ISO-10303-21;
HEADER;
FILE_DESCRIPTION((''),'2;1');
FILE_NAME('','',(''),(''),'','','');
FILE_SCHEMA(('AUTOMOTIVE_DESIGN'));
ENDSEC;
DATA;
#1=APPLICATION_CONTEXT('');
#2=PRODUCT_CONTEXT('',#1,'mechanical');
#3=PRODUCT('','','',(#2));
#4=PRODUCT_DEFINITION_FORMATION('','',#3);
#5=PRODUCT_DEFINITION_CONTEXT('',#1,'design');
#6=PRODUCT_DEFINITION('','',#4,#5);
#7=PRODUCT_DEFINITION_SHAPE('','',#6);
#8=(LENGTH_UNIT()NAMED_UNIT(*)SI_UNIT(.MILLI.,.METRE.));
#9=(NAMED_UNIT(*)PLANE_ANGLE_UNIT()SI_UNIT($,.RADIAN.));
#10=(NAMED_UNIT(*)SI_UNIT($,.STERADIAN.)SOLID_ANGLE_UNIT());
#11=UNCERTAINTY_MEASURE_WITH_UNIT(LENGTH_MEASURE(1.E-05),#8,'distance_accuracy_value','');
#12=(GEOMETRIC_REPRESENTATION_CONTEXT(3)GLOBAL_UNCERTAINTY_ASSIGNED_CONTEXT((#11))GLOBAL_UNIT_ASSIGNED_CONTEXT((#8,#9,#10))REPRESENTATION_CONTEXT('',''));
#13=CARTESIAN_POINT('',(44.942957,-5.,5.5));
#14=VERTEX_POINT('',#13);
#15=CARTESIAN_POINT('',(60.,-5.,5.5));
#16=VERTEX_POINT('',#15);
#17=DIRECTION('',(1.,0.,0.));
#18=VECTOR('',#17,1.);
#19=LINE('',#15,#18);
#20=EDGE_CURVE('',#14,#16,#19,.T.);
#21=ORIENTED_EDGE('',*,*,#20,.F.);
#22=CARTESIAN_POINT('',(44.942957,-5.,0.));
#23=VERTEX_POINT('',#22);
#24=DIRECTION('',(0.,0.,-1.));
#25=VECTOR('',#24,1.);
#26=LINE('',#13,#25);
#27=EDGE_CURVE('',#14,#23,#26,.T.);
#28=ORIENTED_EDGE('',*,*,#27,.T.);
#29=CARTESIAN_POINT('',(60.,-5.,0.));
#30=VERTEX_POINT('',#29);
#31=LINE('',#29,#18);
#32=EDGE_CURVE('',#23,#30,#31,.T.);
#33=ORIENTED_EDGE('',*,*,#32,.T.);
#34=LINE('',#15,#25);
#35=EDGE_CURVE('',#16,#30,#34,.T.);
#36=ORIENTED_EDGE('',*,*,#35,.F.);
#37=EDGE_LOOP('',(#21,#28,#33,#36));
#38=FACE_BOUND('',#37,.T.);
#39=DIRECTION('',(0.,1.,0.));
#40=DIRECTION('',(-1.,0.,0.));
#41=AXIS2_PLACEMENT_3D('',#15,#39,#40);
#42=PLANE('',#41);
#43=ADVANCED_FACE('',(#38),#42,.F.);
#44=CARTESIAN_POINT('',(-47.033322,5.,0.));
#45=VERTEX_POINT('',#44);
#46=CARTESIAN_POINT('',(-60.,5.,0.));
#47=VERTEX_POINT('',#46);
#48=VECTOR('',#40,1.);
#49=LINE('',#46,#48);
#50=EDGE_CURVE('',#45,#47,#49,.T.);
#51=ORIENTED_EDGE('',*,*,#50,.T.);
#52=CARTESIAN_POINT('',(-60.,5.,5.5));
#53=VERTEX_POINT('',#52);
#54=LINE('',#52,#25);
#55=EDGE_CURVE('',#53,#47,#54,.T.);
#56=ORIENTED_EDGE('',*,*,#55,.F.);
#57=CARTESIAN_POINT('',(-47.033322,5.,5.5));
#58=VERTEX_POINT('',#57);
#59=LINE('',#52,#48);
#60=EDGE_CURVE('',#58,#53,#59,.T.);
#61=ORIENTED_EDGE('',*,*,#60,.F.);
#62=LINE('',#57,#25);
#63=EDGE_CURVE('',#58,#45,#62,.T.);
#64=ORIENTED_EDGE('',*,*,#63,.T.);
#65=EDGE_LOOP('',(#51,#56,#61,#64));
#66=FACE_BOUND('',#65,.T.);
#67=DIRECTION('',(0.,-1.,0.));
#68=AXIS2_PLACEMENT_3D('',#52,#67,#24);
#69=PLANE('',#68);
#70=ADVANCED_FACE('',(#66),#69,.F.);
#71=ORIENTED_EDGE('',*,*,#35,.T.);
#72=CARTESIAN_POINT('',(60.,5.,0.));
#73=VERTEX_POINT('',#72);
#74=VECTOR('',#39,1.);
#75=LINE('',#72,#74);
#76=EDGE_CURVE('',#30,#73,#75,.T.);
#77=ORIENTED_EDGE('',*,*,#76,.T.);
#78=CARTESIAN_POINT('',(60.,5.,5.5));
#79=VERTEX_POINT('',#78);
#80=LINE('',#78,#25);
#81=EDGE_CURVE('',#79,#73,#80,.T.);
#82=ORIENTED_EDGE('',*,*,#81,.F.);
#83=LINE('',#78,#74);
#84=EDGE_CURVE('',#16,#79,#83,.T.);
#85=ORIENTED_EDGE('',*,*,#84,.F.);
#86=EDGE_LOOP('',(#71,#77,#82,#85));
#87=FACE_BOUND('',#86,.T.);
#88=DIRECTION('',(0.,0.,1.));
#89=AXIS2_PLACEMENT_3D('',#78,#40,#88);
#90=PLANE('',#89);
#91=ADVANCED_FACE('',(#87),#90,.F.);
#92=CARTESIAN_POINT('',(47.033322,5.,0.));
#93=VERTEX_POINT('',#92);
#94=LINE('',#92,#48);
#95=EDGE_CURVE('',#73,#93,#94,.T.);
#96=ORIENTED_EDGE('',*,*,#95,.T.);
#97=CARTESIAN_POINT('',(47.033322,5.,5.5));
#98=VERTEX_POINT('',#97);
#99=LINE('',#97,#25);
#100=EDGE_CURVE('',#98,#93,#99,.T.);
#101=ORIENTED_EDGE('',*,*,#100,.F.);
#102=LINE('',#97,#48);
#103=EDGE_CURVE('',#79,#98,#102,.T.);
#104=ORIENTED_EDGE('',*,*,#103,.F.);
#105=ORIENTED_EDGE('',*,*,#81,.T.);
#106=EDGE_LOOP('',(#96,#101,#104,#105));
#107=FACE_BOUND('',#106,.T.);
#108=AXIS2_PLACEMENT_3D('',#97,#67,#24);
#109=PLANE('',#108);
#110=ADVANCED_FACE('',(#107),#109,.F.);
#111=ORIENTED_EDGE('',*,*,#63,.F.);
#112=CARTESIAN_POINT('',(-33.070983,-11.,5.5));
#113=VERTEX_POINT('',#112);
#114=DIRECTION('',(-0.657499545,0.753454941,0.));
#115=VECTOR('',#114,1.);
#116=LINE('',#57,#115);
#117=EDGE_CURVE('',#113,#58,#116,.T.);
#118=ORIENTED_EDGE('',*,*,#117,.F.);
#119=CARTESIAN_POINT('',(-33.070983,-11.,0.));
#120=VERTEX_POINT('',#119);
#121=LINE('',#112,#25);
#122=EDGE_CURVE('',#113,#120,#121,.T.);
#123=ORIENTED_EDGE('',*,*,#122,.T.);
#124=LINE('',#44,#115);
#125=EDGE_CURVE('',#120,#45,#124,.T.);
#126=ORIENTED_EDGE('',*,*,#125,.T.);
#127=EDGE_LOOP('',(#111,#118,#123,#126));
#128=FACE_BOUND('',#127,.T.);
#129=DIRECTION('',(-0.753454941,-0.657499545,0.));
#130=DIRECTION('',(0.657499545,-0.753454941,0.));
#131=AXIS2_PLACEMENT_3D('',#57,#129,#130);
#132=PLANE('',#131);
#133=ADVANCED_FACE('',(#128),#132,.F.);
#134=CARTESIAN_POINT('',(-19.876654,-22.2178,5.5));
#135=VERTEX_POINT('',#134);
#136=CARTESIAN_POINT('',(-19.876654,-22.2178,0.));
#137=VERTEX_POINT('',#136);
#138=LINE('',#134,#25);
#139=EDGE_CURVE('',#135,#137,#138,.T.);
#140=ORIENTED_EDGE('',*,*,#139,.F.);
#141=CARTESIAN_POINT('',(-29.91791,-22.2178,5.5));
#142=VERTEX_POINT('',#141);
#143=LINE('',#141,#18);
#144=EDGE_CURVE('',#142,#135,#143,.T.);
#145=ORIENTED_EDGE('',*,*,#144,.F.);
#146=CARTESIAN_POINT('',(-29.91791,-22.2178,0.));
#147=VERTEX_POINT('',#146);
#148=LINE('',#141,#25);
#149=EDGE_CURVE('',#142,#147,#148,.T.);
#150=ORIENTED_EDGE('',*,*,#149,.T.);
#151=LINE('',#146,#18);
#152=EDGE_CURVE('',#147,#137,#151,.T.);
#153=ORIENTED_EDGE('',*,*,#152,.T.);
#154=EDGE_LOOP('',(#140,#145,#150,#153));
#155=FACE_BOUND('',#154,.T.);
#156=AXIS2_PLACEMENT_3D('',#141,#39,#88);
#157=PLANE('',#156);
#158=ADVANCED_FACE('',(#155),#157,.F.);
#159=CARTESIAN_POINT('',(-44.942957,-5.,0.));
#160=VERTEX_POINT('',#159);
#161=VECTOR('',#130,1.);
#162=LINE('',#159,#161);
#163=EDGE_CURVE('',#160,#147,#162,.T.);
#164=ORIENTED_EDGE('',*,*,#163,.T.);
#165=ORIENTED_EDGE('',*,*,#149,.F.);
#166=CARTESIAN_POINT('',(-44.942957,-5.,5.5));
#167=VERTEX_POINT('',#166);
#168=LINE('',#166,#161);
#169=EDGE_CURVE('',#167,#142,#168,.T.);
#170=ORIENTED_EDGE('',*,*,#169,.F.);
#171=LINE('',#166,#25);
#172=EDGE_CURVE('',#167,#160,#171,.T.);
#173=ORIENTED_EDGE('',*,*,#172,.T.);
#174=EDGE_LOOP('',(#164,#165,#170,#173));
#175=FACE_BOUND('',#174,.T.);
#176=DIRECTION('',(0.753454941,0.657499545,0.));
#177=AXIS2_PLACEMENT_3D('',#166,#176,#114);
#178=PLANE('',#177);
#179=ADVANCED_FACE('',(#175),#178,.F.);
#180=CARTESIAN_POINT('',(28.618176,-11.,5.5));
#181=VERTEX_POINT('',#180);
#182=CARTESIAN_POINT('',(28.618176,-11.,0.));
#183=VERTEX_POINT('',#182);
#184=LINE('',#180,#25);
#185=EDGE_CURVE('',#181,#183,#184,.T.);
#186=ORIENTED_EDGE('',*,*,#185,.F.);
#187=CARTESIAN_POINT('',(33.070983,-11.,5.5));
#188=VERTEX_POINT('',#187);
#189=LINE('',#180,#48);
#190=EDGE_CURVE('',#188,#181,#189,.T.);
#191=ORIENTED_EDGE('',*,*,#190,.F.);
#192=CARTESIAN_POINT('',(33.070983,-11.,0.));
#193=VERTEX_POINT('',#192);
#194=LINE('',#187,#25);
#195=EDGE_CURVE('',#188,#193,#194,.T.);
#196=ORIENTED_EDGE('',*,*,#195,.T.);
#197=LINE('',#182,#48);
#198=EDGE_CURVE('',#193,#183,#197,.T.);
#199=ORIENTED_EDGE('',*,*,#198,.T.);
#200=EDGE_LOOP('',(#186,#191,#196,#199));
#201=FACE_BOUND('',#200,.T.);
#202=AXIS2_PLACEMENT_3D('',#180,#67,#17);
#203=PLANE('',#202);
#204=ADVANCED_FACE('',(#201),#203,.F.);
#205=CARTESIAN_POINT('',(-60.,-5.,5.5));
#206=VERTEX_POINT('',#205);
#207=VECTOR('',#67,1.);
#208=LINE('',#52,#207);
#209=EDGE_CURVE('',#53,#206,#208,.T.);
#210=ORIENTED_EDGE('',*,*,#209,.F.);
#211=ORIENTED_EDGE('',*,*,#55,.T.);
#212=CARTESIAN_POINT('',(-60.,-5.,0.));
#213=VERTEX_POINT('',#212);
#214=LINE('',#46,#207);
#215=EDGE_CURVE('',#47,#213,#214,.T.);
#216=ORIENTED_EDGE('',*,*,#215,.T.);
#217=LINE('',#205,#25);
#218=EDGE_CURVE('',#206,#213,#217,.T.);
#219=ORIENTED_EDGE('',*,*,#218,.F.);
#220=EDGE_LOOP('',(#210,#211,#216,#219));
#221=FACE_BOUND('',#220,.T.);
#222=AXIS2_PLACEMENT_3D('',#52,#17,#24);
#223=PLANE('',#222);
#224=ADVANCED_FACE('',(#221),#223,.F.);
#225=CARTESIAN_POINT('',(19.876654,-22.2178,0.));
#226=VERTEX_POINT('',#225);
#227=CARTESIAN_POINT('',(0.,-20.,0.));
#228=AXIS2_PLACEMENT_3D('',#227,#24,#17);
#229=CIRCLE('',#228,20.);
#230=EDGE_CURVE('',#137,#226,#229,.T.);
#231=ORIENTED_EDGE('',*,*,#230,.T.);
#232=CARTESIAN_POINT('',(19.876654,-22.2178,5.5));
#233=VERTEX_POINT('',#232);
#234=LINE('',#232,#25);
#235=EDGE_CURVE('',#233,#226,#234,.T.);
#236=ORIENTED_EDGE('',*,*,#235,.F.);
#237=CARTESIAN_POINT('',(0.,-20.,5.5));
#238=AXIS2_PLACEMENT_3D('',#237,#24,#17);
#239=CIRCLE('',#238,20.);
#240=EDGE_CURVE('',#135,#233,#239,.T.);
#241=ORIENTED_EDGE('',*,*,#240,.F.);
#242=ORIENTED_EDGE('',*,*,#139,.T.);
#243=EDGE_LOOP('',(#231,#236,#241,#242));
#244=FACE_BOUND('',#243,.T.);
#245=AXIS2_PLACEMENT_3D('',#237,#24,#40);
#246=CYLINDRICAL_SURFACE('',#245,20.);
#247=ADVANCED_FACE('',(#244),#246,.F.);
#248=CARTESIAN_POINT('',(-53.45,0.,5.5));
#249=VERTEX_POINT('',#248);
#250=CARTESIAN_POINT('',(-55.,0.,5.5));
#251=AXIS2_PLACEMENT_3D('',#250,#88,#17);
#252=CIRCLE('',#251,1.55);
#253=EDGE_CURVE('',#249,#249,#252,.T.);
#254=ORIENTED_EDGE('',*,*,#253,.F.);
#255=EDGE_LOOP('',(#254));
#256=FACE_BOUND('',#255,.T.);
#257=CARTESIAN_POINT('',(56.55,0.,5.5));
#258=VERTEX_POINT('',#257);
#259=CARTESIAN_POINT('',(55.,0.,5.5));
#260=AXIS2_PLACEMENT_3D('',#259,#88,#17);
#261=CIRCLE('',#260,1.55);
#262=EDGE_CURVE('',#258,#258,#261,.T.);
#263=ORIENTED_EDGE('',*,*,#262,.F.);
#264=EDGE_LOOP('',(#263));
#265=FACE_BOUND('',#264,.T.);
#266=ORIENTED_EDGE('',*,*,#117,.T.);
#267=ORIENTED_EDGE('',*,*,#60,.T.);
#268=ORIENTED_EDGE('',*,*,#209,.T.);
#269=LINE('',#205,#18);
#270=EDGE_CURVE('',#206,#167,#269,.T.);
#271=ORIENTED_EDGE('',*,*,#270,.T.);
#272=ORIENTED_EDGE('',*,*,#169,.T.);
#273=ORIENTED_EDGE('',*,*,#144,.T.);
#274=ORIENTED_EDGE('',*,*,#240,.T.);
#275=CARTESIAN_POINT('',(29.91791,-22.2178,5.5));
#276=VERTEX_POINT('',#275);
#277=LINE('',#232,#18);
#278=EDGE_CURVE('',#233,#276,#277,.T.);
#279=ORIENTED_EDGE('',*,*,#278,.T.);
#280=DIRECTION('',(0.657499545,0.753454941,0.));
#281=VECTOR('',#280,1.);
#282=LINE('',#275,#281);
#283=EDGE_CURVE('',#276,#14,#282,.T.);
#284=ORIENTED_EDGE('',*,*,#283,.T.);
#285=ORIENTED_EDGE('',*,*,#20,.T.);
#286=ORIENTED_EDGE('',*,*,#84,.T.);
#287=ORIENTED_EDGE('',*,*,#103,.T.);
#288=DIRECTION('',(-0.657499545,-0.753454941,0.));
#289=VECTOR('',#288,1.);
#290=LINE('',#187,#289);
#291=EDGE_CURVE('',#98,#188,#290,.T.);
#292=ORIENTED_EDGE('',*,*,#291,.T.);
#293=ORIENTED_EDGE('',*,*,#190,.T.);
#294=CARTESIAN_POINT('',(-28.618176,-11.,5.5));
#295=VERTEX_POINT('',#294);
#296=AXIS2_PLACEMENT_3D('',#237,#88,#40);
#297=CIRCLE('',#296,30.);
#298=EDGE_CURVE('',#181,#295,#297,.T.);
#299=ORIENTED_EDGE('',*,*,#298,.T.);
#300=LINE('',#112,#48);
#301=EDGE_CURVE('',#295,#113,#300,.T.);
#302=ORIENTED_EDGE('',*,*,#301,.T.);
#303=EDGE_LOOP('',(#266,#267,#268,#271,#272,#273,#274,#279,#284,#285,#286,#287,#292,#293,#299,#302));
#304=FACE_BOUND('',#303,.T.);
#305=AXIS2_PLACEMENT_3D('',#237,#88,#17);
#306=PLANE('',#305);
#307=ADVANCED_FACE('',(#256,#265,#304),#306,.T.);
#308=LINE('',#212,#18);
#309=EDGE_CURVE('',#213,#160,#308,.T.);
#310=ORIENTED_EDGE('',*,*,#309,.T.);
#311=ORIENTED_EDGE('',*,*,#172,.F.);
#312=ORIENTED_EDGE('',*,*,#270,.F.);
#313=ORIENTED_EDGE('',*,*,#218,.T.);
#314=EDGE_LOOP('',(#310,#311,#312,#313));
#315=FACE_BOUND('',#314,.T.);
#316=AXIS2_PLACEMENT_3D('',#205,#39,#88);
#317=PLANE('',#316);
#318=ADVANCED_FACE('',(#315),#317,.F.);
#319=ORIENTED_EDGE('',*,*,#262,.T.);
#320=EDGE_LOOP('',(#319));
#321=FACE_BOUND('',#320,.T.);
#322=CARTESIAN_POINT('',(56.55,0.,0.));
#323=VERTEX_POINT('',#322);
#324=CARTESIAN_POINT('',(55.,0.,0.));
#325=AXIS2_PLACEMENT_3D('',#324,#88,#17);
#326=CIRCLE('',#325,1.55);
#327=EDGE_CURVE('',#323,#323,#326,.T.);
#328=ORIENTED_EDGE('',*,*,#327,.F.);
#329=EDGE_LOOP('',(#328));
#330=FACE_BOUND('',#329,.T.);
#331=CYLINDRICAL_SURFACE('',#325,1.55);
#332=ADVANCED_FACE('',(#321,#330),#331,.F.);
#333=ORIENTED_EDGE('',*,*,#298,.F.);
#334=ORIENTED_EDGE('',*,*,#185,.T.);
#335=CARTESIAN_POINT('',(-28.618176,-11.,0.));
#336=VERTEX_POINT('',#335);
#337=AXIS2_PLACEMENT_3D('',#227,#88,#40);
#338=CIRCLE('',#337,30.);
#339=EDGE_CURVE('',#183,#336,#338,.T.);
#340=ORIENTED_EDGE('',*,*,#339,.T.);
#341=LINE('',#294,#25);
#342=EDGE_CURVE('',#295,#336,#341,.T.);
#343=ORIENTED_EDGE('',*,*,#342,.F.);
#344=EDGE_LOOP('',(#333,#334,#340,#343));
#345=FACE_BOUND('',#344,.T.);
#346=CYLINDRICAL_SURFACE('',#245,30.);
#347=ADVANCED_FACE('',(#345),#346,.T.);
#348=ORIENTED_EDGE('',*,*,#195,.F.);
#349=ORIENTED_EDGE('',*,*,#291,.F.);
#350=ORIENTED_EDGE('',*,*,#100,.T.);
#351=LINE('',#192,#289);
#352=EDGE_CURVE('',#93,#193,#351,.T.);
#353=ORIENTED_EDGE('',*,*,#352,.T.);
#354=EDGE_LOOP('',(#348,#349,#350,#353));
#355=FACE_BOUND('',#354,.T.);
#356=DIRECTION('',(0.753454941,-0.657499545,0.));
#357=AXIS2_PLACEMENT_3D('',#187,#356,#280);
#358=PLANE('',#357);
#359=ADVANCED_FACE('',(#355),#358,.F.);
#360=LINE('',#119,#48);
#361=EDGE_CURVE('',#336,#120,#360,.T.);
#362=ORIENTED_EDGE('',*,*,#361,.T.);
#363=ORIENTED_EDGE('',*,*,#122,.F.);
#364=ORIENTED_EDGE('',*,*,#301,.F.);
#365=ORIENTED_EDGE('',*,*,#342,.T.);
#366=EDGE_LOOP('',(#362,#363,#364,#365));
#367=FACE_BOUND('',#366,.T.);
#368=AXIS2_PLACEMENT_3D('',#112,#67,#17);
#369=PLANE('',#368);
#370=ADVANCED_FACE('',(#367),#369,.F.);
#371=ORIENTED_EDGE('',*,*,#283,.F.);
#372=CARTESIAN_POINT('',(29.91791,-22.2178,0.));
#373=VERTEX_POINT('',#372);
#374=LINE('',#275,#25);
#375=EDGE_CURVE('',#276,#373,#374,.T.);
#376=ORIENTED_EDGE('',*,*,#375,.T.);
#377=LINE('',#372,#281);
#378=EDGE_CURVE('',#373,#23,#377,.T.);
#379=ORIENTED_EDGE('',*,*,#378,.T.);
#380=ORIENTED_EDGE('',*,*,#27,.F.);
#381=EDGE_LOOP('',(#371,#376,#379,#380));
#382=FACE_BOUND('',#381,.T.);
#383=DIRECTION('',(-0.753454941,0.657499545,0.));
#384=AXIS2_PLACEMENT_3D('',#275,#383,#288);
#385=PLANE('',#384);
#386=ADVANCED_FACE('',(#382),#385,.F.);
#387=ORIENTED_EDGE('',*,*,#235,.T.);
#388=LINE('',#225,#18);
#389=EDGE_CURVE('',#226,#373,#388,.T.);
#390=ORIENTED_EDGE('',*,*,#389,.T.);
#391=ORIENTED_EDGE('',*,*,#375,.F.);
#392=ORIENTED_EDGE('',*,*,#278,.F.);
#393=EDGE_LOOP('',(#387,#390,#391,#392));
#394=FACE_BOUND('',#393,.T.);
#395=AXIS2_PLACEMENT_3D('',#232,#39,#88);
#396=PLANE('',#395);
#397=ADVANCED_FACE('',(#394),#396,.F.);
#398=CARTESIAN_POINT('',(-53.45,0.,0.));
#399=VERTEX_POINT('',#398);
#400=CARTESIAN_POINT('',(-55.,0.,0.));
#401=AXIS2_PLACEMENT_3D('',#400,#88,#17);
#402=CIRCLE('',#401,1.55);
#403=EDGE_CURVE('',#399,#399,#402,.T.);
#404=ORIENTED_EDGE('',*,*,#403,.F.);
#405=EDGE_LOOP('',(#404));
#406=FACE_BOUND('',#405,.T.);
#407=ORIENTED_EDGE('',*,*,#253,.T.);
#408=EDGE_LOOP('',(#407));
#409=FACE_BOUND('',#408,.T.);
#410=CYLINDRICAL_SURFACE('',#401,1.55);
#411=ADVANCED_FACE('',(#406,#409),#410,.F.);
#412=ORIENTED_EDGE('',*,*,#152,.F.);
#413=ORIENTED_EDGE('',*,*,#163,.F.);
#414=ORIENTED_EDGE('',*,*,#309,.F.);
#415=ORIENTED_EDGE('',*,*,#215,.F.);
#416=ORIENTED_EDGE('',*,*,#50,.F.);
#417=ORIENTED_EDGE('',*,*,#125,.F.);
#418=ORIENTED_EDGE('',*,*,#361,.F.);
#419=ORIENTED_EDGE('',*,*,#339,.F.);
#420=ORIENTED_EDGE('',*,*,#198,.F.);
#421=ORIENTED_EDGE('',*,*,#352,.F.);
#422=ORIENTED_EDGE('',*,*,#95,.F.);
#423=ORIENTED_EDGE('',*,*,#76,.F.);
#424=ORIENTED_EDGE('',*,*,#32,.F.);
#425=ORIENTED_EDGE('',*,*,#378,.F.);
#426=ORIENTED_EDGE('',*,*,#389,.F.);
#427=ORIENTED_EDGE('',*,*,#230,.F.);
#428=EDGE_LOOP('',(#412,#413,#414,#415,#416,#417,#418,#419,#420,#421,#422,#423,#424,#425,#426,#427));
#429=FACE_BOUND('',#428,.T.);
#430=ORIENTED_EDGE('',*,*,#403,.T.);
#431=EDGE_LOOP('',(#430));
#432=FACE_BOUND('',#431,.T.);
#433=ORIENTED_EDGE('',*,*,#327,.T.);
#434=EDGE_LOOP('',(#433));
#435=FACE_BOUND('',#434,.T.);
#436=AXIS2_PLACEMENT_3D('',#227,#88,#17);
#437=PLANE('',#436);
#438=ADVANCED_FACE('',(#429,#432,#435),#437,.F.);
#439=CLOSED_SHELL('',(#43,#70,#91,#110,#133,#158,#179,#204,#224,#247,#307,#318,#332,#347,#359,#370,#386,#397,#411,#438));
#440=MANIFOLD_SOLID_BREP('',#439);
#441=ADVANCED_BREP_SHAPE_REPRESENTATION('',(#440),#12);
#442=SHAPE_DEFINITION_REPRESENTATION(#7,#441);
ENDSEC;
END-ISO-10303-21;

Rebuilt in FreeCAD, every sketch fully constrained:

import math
import FreeCAD as App
import Part
import Sketcher

doc = App.newDocument("Part")
params = doc.addObject("Spreadsheet::Sheet", "Params")
for row, (alias, value) in enumerate([
    ("sketch1_radius", "20 mm"),
    ("sketch1_radius2", "30 mm"),
    ("sketch1_height", "10 mm"),
    ("pad1_length", "5.5 mm"),
    ("sketch2_diameter", "3.1 mm"),
], start=1):
    params.set(f"A{row}", alias)
    params.set(f"B{row}", "=" + value)
    params.setAlias(f"B{row}", alias)

body = doc.addObject("PartDesign::Body", "Body")

sketch1 = body.newObject("Sketcher::SketchObject", "Sketch")
sketch1.AttachmentSupport = (doc.getObject("XY_Plane"), [""])
sketch1.MapMode = "FlatFace"
sketch1.addGeometry([
    Part.LineSegment(App.Vector(-47, 5, 0), App.Vector(-60, 5, 0)),
    Part.LineSegment(App.Vector(-60, 5, 0), App.Vector(-60, -5, 0)),
    Part.LineSegment(App.Vector(-60, -5, 0), App.Vector(-44.9, -5, 0)),
    Part.LineSegment(App.Vector(-44.9, -5, 0), App.Vector(-29.9, -22.2, 0)),
    Part.LineSegment(App.Vector(-29.9, -22.2, 0), App.Vector(-19.9, -22.2, 0)),
    Part.ArcOfCircle(Part.Circle(App.Vector(0, -20, 0), App.Vector(0, 0, 1), 20), math.radians(-6), math.radians(186)),
    Part.LineSegment(App.Vector(19.9, -22.2, 0), App.Vector(29.9, -22.2, 0)),
    Part.LineSegment(App.Vector(29.9, -22.2, 0), App.Vector(44.9, -5, 0)),
    Part.LineSegment(App.Vector(44.9, -5, 0), App.Vector(60, -5, 0)),
    Part.LineSegment(App.Vector(60, -5, 0), App.Vector(60, 5, 0)),
    Part.LineSegment(App.Vector(60, 5, 0), App.Vector(47, 5, 0)),
    Part.LineSegment(App.Vector(47, 5, 0), App.Vector(33.1, -11, 0)),
    Part.LineSegment(App.Vector(33.1, -11, 0), App.Vector(28.6, -11, 0)),
    Part.ArcOfCircle(Part.Circle(App.Vector(0, -20, 0), App.Vector(0, 0, 1), 30), math.radians(17), math.radians(163)),
    Part.LineSegment(App.Vector(-28.6, -11, 0), App.Vector(-33.1, -11, 0)),
    Part.LineSegment(App.Vector(-33.1, -11, 0), App.Vector(-47, 5, 0)),
], False)
sketch1.addConstraint([
    Sketcher.Constraint("Coincident", 0, 2, 1, 1),
    Sketcher.Constraint("Coincident", 1, 2, 2, 1),
    Sketcher.Constraint("Coincident", 2, 2, 3, 1),
    Sketcher.Constraint("Coincident", 3, 2, 4, 1),
    Sketcher.Constraint("Coincident", 4, 2, 5, 2),
    Sketcher.Constraint("Coincident", 5, 1, 6, 1),
    Sketcher.Constraint("Coincident", 6, 2, 7, 1),
    Sketcher.Constraint("Coincident", 7, 2, 8, 1),
    Sketcher.Constraint("Coincident", 8, 2, 9, 1),
    Sketcher.Constraint("Coincident", 9, 2, 10, 1),
    Sketcher.Constraint("Coincident", 10, 2, 11, 1),
    Sketcher.Constraint("Coincident", 11, 2, 12, 1),
    Sketcher.Constraint("Coincident", 12, 2, 13, 1),
    Sketcher.Constraint("Coincident", 13, 2, 14, 1),
    Sketcher.Constraint("Coincident", 14, 2, 15, 1),
    Sketcher.Constraint("Coincident", 15, 2, 0, 1),
    Sketcher.Constraint("Horizontal", 0),
    Sketcher.Constraint("Vertical", 1),
    Sketcher.Constraint("Horizontal", 2),
    Sketcher.Constraint("Horizontal", 4),
    Sketcher.Constraint("Horizontal", 6),
    Sketcher.Constraint("Horizontal", 8),
    Sketcher.Constraint("Vertical", 9),
    Sketcher.Constraint("Horizontal", 10),
    Sketcher.Constraint("Horizontal", 12),
    Sketcher.Constraint("Horizontal", 14),
    Sketcher.Constraint("Coincident", 13, 3, 5, 3),
    Sketcher.Constraint("Symmetric", 0, 2, 8, 2, -1, 1),
    Sketcher.Constraint("Symmetric", 4, 2, 5, 1, -2),
    Sketcher.Constraint("Symmetric", 2, 2, 7, 2, -2),
    Sketcher.Constraint("Symmetric", 11, 2, 14, 2, -2),
    Sketcher.Constraint("Symmetric", 10, 2, 15, 2, -2),
    Sketcher.Constraint("Parallel", 7, 11),
    Sketcher.Constraint("Parallel", 3, 15),
    Sketcher.Constraint("Radius", 5, 20.0),
    Sketcher.Constraint("Radius", 13, 30.0),
    Sketcher.Constraint("DistanceY", 1, 2, 1, 1, 10.0),
    Sketcher.Constraint("DistanceY", 5, 3, -1, 1, 20.0),
    Sketcher.Constraint("DistanceX", 0, 2, -1, 1, 60.0),
    Sketcher.Constraint("DistanceY", 11, 2, -1, 1, 11.0),
    Sketcher.Constraint("Distance", 3, 22.851798),
    Sketcher.Constraint("DistanceX", 0, 2, 0, 1, 12.966678),
    Sketcher.Constraint("DistanceY", 3, 2, -1, 1, 22.2178),
    Sketcher.Constraint("DistanceX", 2, 1, 2, 2, 15.057043),
])
sketch1.setExpression("Constraints[34]", "Params.sketch1_radius")
sketch1.setExpression("Constraints[35]", "Params.sketch1_radius2")
sketch1.setExpression("Constraints[36]", "Params.sketch1_height")
pad1 = body.newObject("PartDesign::Pad", "Pad")
pad1.Profile = sketch1
pad1.setExpression("Length", "Params.pad1_length")

sketch2 = body.newObject("Sketcher::SketchObject", "Sketch001")
sketch2.AttachmentSupport = (doc.getObject("XY_Plane"), [""])
sketch2.MapMode = "FlatFace"
sketch2.AttachmentOffset = App.Placement(App.Vector(0, 0, 5.5), App.Rotation())
sketch2.addGeometry([
    Part.Circle(App.Vector(-55, 0, 0), App.Vector(0, 0, 1), 1.6),
    Part.Circle(App.Vector(55, 0, 0), App.Vector(0, 0, 1), 1.6),
], False)
sketch2.addConstraint([
    Sketcher.Constraint("Equal", 0, 1),
    Sketcher.Constraint("Symmetric", 0, 3, 1, 3, -1, 1),
    Sketcher.Constraint("PointOnObject", 0, 3, -1),
    Sketcher.Constraint("Diameter", 0, 3.1),
    Sketcher.Constraint("DistanceX", 0, 3, -1, 1, 55.0),
])
sketch2.setExpression("Constraints[3]", "Params.sketch2_diameter")
pocket1 = body.newObject("PartDesign::Pocket", "Pocket")
pocket1.Profile = sketch2
pocket1.Type = "ThroughAll"

doc.recompute()
